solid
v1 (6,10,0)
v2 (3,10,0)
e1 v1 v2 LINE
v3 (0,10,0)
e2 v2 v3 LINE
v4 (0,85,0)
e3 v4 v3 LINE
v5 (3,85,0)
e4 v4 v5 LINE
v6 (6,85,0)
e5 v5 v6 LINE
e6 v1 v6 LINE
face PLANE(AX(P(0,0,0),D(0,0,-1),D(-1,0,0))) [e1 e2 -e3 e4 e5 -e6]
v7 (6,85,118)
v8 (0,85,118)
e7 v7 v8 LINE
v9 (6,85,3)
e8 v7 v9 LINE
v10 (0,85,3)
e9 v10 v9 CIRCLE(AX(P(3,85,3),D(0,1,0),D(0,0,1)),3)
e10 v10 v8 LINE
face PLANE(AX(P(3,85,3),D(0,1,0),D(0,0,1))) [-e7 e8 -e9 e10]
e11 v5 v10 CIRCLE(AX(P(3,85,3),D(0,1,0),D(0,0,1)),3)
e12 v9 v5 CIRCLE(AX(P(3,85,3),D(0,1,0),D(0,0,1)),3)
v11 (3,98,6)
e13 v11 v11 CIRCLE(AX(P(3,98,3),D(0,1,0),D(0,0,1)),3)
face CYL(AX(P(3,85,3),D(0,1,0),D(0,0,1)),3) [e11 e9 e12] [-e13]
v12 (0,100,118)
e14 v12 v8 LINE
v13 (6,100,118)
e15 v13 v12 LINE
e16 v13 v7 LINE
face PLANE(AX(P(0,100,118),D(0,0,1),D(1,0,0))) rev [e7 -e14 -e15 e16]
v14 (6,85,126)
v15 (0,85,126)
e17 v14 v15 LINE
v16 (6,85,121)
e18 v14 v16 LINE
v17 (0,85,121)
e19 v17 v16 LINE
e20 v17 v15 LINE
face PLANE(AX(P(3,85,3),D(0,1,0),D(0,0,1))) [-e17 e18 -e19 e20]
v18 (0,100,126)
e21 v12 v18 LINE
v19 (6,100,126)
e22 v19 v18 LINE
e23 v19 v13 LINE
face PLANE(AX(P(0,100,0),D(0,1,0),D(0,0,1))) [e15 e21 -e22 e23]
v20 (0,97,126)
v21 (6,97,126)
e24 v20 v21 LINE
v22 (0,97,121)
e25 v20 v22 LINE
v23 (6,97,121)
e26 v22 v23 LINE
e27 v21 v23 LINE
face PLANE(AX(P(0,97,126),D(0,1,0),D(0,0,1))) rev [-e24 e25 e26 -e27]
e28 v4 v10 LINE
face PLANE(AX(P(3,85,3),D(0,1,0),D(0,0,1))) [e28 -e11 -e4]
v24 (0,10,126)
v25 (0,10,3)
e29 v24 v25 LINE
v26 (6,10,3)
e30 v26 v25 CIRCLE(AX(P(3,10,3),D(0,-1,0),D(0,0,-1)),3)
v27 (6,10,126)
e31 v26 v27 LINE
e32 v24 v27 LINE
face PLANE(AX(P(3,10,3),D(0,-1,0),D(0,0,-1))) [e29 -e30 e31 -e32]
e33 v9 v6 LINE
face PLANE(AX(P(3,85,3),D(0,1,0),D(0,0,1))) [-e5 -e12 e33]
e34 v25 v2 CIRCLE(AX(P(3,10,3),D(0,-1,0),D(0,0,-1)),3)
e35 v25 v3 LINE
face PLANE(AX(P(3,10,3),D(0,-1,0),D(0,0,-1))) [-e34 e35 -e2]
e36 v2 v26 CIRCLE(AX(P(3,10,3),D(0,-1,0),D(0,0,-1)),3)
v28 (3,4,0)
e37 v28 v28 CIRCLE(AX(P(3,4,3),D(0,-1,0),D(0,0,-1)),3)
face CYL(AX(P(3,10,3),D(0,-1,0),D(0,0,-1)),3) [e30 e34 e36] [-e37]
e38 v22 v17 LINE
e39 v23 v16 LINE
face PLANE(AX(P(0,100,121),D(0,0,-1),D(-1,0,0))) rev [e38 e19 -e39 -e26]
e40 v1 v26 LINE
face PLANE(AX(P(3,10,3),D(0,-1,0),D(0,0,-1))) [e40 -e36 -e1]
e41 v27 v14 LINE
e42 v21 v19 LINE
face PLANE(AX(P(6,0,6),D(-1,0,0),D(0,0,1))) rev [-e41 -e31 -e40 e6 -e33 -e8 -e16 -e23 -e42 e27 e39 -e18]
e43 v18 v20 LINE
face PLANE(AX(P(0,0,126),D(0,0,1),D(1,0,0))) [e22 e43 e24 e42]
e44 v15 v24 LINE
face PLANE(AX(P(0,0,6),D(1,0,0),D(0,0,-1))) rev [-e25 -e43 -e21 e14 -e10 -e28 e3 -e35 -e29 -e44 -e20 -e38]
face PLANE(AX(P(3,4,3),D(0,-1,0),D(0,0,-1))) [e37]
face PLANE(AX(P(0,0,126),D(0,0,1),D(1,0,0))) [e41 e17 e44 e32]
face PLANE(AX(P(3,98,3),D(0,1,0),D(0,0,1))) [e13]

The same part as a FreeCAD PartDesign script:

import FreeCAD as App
import Part
import Sketcher
from FreeCAD import Vector
Q = App.Units.Quantity

doc = App.newDocument("Part")
body = doc.addObject("PartDesign::Body", "Body")

# Sketch on XY plane
sketch1 = doc.addObject("Sketcher::SketchObject", "Sketch")
body.addObject(sketch1)
sketch1.AttachmentSupport = (doc.XY_Plane, [""])
sketch1.MapMode = "FlatFace"
sketch1.addGeometry(Part.LineSegment(Vector(0, 100, 0), Vector(0, 0, 0)), False)
sketch1.addGeometry(Part.LineSegment(Vector(0, 0, 0), Vector(6, 0, 0)), False)
sketch1.addGeometry(Part.LineSegment(Vector(6, 0, 0), Vector(6, 100, 0)), False)
sketch1.addGeometry(Part.LineSegment(Vector(6, 100, 0), Vector(0, 100, 0)), False)
sketch1.addConstraint(Sketcher.Constraint("Coincident", 0, 2, 1, 1))
sketch1.addConstraint(Sketcher.Constraint("Coincident", 1, 2, 2, 1))
sketch1.addConstraint(Sketcher.Constraint("Coincident", 2, 2, 3, 1))
sketch1.addConstraint(Sketcher.Constraint("Coincident", 3, 2, 0, 1))
sketch1.addConstraint(Sketcher.Constraint("Vertical", 0))
sketch1.addConstraint(Sketcher.Constraint("Horizontal", 1))
sketch1.addConstraint(Sketcher.Constraint("Vertical", 2))
sketch1.addConstraint(Sketcher.Constraint("Horizontal", 3))
sketch1.addConstraint(Sketcher.Constraint("Coincident", 0, 2, -1, 1))
sketch1.addConstraint(Sketcher.Constraint("DistanceX", 1, 1, 1, 2, Q("6 mm")))
sketch1.addConstraint(Sketcher.Constraint("DistanceY", 0, 2, 0, 1, Q("100 mm")))
pad1 = doc.addObject("PartDesign::Pad", "Pad")
body.addObject(pad1)
pad1.Profile = sketch1
pad1.Length = 6

# Sketch on XZ plane
sketch2 = doc.addObject("Sketcher::SketchObject", "Sketch001")
body.addObject(sketch2)
sketch2.AttachmentSupport = (doc.XZ_Plane, [""])
sketch2.MapMode = "FlatFace"
sketch2.AttachmentOffset = App.Placement(Vector(0, 0, -100), App.Rotation())
sketch2.addGeometry(Part.LineSegment(Vector(-11.036, -11.036, 0), Vector(-11.036, 17.036, 0)), False)
sketch2.addGeometry(Part.LineSegment(Vector(-11.036, 17.036, 0), Vector(17.036, 17.036, 0)), False)
sketch2.addGeometry(Part.LineSegment(Vector(17.036, 17.036, 0), Vector(17.036, -11.036, 0)), False)
sketch2.addGeometry(Part.LineSegment(Vector(17.036, -11.036, 0), Vector(-11.036, -11.036, 0)), False)
sketch2.addGeometry(Part.Circle(Vector(3, 3, 0), Vector(0, 0, 1), 3), False)
sketch2.addConstraint(Sketcher.Constraint("Coincident", 0, 2, 1, 1))
sketch2.addConstraint(Sketcher.Constraint("Coincident", 1, 2, 2, 1))
sketch2.addConstraint(Sketcher.Constraint("Coincident", 2, 2, 3, 1))
sketch2.addConstraint(Sketcher.Constraint("Coincident", 3, 2, 0, 1))
sketch2.addConstraint(Sketcher.Constraint("Vertical", 0))
sketch2.addConstraint(Sketcher.Constraint("Horizontal", 1))
sketch2.addConstraint(Sketcher.Constraint("Vertical", 2))
sketch2.addConstraint(Sketcher.Constraint("Horizontal", 3))
sketch2.addConstraint(Sketcher.Constraint("Equal", 3, 0))
sketch2.addConstraint(Sketcher.Constraint("Diameter", 4, Q("6 mm")))
sketch2.addConstraint(Sketcher.Constraint("DistanceX", -1, 1, 4, 3, Q("3 mm")))
sketch2.addConstraint(Sketcher.Constraint("DistanceY", -1, 1, 4, 3, Q("3 mm")))
sketch2.addConstraint(Sketcher.Constraint("DistanceX", 1, 1, 1, 2, Q("28.072 mm")))
sketch2.addConstraint(Sketcher.Constraint("DistanceX", 0, 2, -1, 1, Q("11.036 mm")))
sketch2.addConstraint(Sketcher.Constraint("DistanceY", -1, 1, 0, 2, Q("17.036 mm")))
pocket1 = doc.addObject("PartDesign::Pocket", "Pocket")
body.addObject(pocket1)
pocket1.Profile = sketch2
pocket1.Length = 15
pocket1.Reversed = True

# Sketch on XZ plane
sketch3 = doc.addObject("Sketcher::SketchObject", "Sketch002")
body.addObject(sketch3)
sketch3.AttachmentSupport = (doc.XZ_Plane, [""])
sketch3.MapMode = "FlatFace"
sketch3.addGeometry(Part.LineSegment(Vector(-11.036, 17.036, 0), Vector(-11.036, -11.036, 0)), False)
sketch3.addGeometry(Part.LineSegment(Vector(-11.036, -11.036, 0), Vector(17.036, -11.036, 0)), False)
sketch3.addGeometry(Part.LineSegment(Vector(17.036, -11.036, 0), Vector(17.036, 17.036, 0)), False)
sketch3.addGeometry(Part.LineSegment(Vector(17.036, 17.036, 0), Vector(-11.036, 17.036, 0)), False)
sketch3.addGeometry(Part.Circle(Vector(3, 3, 0), Vector(0, 0, 1), 3), False)
sketch3.addConstraint(Sketcher.Constraint("Coincident", 0, 2, 1, 1))
sketch3.addConstraint(Sketcher.Constraint("Coincident", 1, 2, 2, 1))
sketch3.addConstraint(Sketcher.Constraint("Coincident", 2, 2, 3, 1))
sketch3.addConstraint(Sketcher.Constraint("Coincident", 3, 2, 0, 1))
sketch3.addConstraint(Sketcher.Constraint("Vertical", 0))
sketch3.addConstraint(Sketcher.Constraint("Horizontal", 1))
sketch3.addConstraint(Sketcher.Constraint("Vertical", 2))
sketch3.addConstraint(Sketcher.Constraint("Horizontal", 3))
sketch3.addConstraint(Sketcher.Constraint("Equal", 3, 0))
sketch3.addConstraint(Sketcher.Constraint("Diameter", 4, Q("6 mm")))
sketch3.addConstraint(Sketcher.Constraint("DistanceX", -1, 1, 4, 3, Q("3 mm")))
sketch3.addConstraint(Sketcher.Constraint("DistanceY", -1, 1, 4, 3, Q("3 mm")))
sketch3.addConstraint(Sketcher.Constraint("DistanceX", 1, 1, 1, 2, Q("28.072 mm")))
sketch3.addConstraint(Sketcher.Constraint("DistanceX", 0, 2, -1, 1, Q("11.036 mm")))
sketch3.addConstraint(Sketcher.Constraint("DistanceY", 0, 2, -1, 1, Q("11.036 mm")))
pocket2 = doc.addObject("PartDesign::Pocket", "Pocket001")
body.addObject(pocket2)
pocket2.Profile = sketch3
pocket2.Length = 10

# Sketch on XZ plane
sketch4 = doc.addObject("Sketcher::SketchObject", "Sketch003")
body.addObject(sketch4)
sketch4.AttachmentSupport = (doc.XZ_Plane, [""])
sketch4.MapMode = "FlatFace"
sketch4.addGeometry(Part.Circle(Vector(3, 3, 0), Vector(0, 0, 1), 3), False)
sketch4.addConstraint(Sketcher.Constraint("Diameter", 0, Q("6 mm")))
sketch4.addConstraint(Sketcher.Constraint("DistanceX", -1, 1, 0, 3, Q("3 mm")))
sketch4.addConstraint(Sketcher.Constraint("DistanceY", -1, 1, 0, 3, Q("3 mm")))
pocket3 = doc.addObject("PartDesign::Pocket", "Pocket002")
body.addObject(pocket3)
pocket3.Profile = sketch4
pocket3.Length = 5

# Sketch on XZ plane
sketch5 = doc.addObject("Sketcher::SketchObject", "Sketch004")
body.addObject(sketch5)
sketch5.AttachmentSupport = (doc.XZ_Plane, [""])
sketch5.MapMode = "FlatFace"
sketch5.AttachmentOffset = App.Placement(Vector(0, 0, -5), App.Rotation())
sketch5.addGeometry(Part.Circle(Vector(3, 3, 0), Vector(0, 0, 1), 3), False)
sketch5.addConstraint(Sketcher.Constraint("Diameter", 0, Q("6 mm")))
sketch5.addConstraint(Sketcher.Constraint("DistanceX", -1, 1, 0, 3, Q("3 mm")))
sketch5.addConstraint(Sketcher.Constraint("DistanceY", -1, 1, 0, 3, Q("3 mm")))
pad2 = doc.addObject("PartDesign::Pad", "Pad001")
body.addObject(pad2)
pad2.Profile = sketch5
pad2.Length = 1

# Sketch on XY plane
sketch6 = doc.addObject("Sketcher::SketchObject", "Sketch005")
body.addObject(sketch6)
sketch6.AttachmentSupport = (doc.XY_Plane, [""])
sketch6.MapMode = "FlatFace"
sketch6.AttachmentOffset = App.Placement(Vector(0, 0, 6), App.Rotation())
sketch6.addGeometry(Part.LineSegment(Vector(0, 85, 0), Vector(0, 10, 0)), False)
sketch6.addGeometry(Part.LineSegment(Vector(0, 10, 0), Vector(6, 10, 0)), False)
sketch6.addGeometry(Part.LineSegment(Vector(6, 10, 0), Vector(6, 85, 0)), False)
sketch6.addGeometry(Part.LineSegment(Vector(6, 85, 0), Vector(0, 85, 0)), False)
sketch6.addConstraint(Sketcher.Constraint("Coincident", 0, 2, 1, 1))
sketch6.addConstraint(Sketcher.Constraint("Coincident", 1, 2, 2, 1))
sketch6.addConstraint(Sketcher.Constraint("Coincident", 2, 2, 3, 1))
sketch6.addConstraint(Sketcher.Constraint("Coincident", 3, 2, 0, 1))
sketch6.addConstraint(Sketcher.Constraint("Vertical", 0))
sketch6.addConstraint(Sketcher.Constraint("Horizontal", 1))
sketch6.addConstraint(Sketcher.Constraint("Vertical", 2))
sketch6.addConstraint(Sketcher.Constraint("Horizontal", 3))
sketch6.addConstraint(Sketcher.Constraint("PointOnObject", 0, 2, -2))
sketch6.addConstraint(Sketcher.Constraint("DistanceX", 1, 1, 1, 2, Q("6 mm")))
sketch6.addConstraint(Sketcher.Constraint("DistanceY", 0, 2, 0, 1, Q("75 mm")))
sketch6.addConstraint(Sketcher.Constraint("DistanceY", -1, 1, 0, 2, Q("10 mm")))
pad3 = doc.addObject("PartDesign::Pad", "Pad002")
body.addObject(pad3)
pad3.Profile = sketch6
pad3.Length = 120

# Sketch on XZ plane
sketch7 = doc.addObject("Sketcher::SketchObject", "Sketch006")
body.addObject(sketch7)
sketch7.AttachmentSupport = (doc.XZ_Plane, [""])
sketch7.MapMode = "FlatFace"
sketch7.AttachmentOffset = App.Placement(Vector(0, 0, -100), App.Rotation())
sketch7.addGeometry(Part.Circle(Vector(3, 3, 0), Vector(0, 0, 1), 3), False)
sketch7.addConstraint(Sketcher.Constraint("Diameter", 0, Q("6 mm")))
sketch7.addConstraint(Sketcher.Constraint("DistanceX", -1, 1, 0, 3, Q("3 mm")))
sketch7.addConstraint(Sketcher.Constraint("DistanceY", -1, 1, 0, 3, Q("3 mm")))
pocket4 = doc.addObject("PartDesign::Pocket", "Pocket003")
body.addObject(pocket4)
pocket4.Profile = sketch7
pocket4.Length = 2
pocket4.Reversed = True

# Sketch on XZ plane
sketch8 = doc.addObject("Sketcher::SketchObject", "Sketch007")
body.addObject(sketch8)
sketch8.AttachmentSupport = (doc.XZ_Plane, [""])
sketch8.MapMode = "FlatFace"
sketch8.AttachmentOffset = App.Placement(Vector(0, 0, -85), App.Rotation())
sketch8.addGeometry(Part.LineSegment(Vector(0, 118, 0), Vector(0, 121, 0)), False)
sketch8.addGeometry(Part.LineSegment(Vector(0, 121, 0), Vector(6, 121, 0)), False)
sketch8.addGeometry(Part.LineSegment(Vector(6, 121, 0), Vector(6, 118, 0)), False)
sketch8.addGeometry(Part.LineSegment(Vector(6, 118, 0), Vector(0, 118, 0)), False)
sketch8.addConstraint(Sketcher.Constraint("Coincident", 0, 2, 1, 1))
sketch8.addConstraint(Sketcher.Constraint("Coincident", 1, 2, 2, 1))
sketch8.addConstraint(Sketcher.Constraint("Coincident", 2, 2, 3, 1))
sketch8.addConstraint(Sketcher.Constraint("Coincident", 3, 2, 0, 1))
sketch8.addConstraint(Sketcher.Constraint("Vertical", 0))
sketch8.addConstraint(Sketcher.Constraint("Horizontal", 1))
sketch8.addConstraint(Sketcher.Constraint("Vertical", 2))
sketch8.addConstraint(Sketcher.Constraint("Horizontal", 3))
sketch8.addConstraint(Sketcher.Constraint("PointOnObject", 0, 2, -2))
sketch8.addConstraint(Sketcher.Constraint("DistanceX", 1, 1, 1, 2, Q("6 mm")))
sketch8.addConstraint(Sketcher.Constraint("DistanceY", 0, 1, 0, 2, Q("3 mm")))
sketch8.addConstraint(Sketcher.Constraint("DistanceY", -1, 1, 0, 2, Q("121 mm")))
pad4 = doc.addObject("PartDesign::Pad", "Pad003")
body.addObject(pad4)
pad4.Profile = sketch8
pad4.Length = 15
pad4.Reversed = True

# Sketch on XY plane
sketch9 = doc.addObject("Sketcher::SketchObject", "Sketch008")
body.addObject(sketch9)
sketch9.AttachmentSupport = (doc.XY_Plane, [""])
sketch9.MapMode = "FlatFace"
sketch9.AttachmentOffset = App.Placement(Vector(0, 0, 121), App.Rotation())
sketch9.addGeometry(Part.LineSegment(Vector(0, 100, 0), Vector(0, 97, 0)), False)
sketch9.addGeometry(Part.LineSegment(Vector(0, 97, 0), Vector(6, 97, 0)), False)
sketch9.addGeometry(Part.LineSegment(Vector(6, 97, 0), Vector(6, 100, 0)), False)
sketch9.addGeometry(Part.LineSegment(Vector(6, 100, 0), Vector(0, 100, 0)), False)
sketch9.addConstraint(Sketcher.Constraint("Coincident", 0, 2, 1, 1))
sketch9.addConstraint(Sketcher.Constraint("Coincident", 1, 2, 2, 1))
sketch9.addConstraint(Sketcher.Constraint("Coincident", 2, 2, 3, 1))
sketch9.addConstraint(Sketcher.Constraint("Coincident", 3, 2, 0, 1))
sketch9.addConstraint(Sketcher.Constraint("Vertical", 0))
sketch9.addConstraint(Sketcher.Constraint("Horizontal", 1))
sketch9.addConstraint(Sketcher.Constraint("Vertical", 2))
sketch9.addConstraint(Sketcher.Constraint("Horizontal", 3))
sketch9.addConstraint(Sketcher.Constraint("PointOnObject", 0, 2, -2))
sketch9.addConstraint(Sketcher.Constraint("DistanceX", 1, 1, 1, 2, Q("6 mm")))
sketch9.addConstraint(Sketcher.Constraint("DistanceY", 0, 2, 0, 1, Q("3 mm")))
sketch9.addConstraint(Sketcher.Constraint("DistanceY", -1, 1, 0, 2, Q("97 mm")))
pad5 = doc.addObject("PartDesign::Pad", "Pad004")
body.addObject(pad5)
pad5.Profile = sketch9
pad5.Length = 5

doc.recompute()
